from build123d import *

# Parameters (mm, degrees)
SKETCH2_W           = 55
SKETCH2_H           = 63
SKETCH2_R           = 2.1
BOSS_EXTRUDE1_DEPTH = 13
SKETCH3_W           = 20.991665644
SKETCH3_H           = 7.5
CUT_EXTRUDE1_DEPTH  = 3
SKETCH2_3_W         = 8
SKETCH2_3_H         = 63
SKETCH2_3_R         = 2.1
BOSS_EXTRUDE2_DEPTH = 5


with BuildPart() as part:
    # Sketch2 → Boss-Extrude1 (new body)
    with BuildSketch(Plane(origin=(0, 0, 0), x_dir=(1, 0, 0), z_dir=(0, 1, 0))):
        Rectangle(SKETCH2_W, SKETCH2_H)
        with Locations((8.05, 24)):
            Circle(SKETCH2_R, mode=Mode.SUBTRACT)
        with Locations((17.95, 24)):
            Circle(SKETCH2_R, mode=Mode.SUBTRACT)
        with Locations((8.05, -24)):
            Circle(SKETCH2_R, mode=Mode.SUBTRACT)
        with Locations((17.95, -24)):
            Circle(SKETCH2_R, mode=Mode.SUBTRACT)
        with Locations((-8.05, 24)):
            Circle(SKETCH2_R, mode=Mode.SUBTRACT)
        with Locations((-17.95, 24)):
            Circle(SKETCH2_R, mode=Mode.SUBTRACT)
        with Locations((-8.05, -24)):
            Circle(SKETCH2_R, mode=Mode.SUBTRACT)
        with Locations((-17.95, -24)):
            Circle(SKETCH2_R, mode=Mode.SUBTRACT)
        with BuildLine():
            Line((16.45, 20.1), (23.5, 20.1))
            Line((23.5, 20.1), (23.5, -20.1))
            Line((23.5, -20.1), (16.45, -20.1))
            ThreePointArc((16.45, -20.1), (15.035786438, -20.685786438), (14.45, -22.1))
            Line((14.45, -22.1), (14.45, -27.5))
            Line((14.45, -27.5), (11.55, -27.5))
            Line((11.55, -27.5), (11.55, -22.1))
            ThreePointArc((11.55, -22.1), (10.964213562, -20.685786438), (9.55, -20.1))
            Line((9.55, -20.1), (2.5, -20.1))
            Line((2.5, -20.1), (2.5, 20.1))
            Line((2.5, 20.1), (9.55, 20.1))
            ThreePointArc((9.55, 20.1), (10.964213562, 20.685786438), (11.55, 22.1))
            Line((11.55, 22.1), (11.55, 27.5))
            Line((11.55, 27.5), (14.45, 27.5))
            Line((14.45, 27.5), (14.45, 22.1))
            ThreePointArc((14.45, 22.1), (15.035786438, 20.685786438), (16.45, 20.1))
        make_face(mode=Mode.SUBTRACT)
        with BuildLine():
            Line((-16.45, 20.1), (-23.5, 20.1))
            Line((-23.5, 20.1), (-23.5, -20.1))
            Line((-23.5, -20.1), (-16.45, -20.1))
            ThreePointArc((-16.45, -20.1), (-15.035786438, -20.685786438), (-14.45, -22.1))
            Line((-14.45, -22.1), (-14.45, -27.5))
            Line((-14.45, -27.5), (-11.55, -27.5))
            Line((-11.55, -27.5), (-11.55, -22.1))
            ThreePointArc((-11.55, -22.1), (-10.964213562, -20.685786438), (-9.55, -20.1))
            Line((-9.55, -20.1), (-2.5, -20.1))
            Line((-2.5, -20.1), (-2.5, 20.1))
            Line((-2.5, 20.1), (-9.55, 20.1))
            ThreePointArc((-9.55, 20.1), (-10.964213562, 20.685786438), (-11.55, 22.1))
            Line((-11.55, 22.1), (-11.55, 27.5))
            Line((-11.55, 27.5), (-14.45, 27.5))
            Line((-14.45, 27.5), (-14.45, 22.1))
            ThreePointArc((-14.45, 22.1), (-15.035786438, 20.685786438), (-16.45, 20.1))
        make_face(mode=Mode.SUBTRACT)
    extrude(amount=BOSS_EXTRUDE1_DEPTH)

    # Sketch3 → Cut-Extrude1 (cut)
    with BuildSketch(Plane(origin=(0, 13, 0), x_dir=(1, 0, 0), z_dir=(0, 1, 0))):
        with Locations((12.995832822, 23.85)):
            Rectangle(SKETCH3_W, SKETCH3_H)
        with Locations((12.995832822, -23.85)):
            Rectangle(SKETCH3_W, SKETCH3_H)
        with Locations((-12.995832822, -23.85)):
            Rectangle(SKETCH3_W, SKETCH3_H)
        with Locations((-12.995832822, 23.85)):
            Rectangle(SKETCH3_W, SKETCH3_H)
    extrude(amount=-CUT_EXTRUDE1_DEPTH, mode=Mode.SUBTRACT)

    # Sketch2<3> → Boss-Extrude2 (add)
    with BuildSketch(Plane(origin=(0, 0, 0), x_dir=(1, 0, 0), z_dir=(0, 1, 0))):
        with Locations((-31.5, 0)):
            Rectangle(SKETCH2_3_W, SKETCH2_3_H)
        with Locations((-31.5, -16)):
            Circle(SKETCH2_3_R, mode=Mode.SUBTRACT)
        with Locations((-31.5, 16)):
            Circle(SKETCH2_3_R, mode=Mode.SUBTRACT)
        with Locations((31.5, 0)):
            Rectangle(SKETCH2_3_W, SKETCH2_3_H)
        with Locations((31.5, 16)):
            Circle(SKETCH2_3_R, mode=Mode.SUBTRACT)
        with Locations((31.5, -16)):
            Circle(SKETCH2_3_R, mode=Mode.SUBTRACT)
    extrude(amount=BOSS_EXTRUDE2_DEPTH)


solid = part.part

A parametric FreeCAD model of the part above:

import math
import FreeCAD as App
import Part
import Sketcher
from FreeCAD import Vector
Q = App.Units.Quantity

doc = App.newDocument("Part")
body = doc.addObject("PartDesign::Body", "Body")

# Sketch on XZ plane
sketch1 = body.newObject("Sketcher::SketchObject", "Sketch")
sketch1.AttachmentSupport = (doc.getObject("XZ_Plane"), [""])
sketch1.MapMode = "FlatFace"
sketch1.addGeometry([
    Part.LineSegment(Vector(-27.5, -31.5, 0), Vector(-27.5, 31.5, 0)),  # 0
    Part.LineSegment(Vector(-27.5, 31.5, 0), Vector(27.5, 31.5, 0)),  # 1
    Part.LineSegment(Vector(27.5, 31.5, 0), Vector(27.5, -31.5, 0)),  # 2
    Part.LineSegment(Vector(27.5, -31.5, 0), Vector(-27.5, -31.5, 0)),  # 3
    Part.Circle(Vector(-17.9, 24, 0), Vector(0, 0, 1), 2.1),  # 4
    Part.Circle(Vector(-8.1, 24, 0), Vector(0, 0, 1), 2.1),  # 5
    Part.Circle(Vector(8.1, 24, 0), Vector(0, 0, 1), 2.1),  # 6
    Part.Circle(Vector(17.9, 24, 0), Vector(0, 0, 1), 2.1),  # 7
    Part.LineSegment(Vector(-23.5, -20.1, 0), Vector(-16.4, -20.1, 0)),  # 8
    Part.ArcOfCircle(Part.Circle(Vector(-16.5, -22.1, 0), Vector(0, 0, 1), 2), math.radians(0), math.radians(90)),  # 9
    Part.LineSegment(Vector(-14.4, -22.1, 0), Vector(-14.4, -27.5, 0)),  # 10
    Part.LineSegment(Vector(-14.4, -27.5, 0), Vector(-11.6, -27.5, 0)),  # 11
    Part.LineSegment(Vector(-11.6, -27.5, 0), Vector(-11.6, -22.1, 0)),  # 12
    Part.ArcOfCircle(Part.Circle(Vector(-9.5, -22.1, 0), Vector(0, 0, 1), 2), math.radians(90), math.radians(180)),  # 13
    Part.LineSegment(Vector(-9.6, -20.1, 0), Vector(-2.5, -20.1, 0)),  # 14
    Part.LineSegment(Vector(-2.5, -20.1, 0), Vector(-2.5, 20.1, 0)),  # 15
    Part.LineSegment(Vector(-2.5, 20.1, 0), Vector(-9.6, 20.1, 0)),  # 16
    Part.ArcOfCircle(Part.Circle(Vector(-9.5, 22.1, 0), Vector(0, 0, 1), 2), math.radians(-180), math.radians(-90)),  # 17
    Part.LineSegment(Vector(-11.6, 22.1, 0), Vector(-11.6, 27.5, 0)),  # 18
    Part.LineSegment(Vector(-11.6, 27.5, 0), Vector(-14.4, 27.5, 0)),  # 19
    Part.LineSegment(Vector(-14.4, 27.5, 0), Vector(-14.4, 22.1, 0)),  # 20
    Part.ArcOfCircle(Part.Circle(Vector(-16.5, 22.1, 0), Vector(0, 0, 1), 2), math.radians(-90), math.radians(0)),  # 21
    Part.LineSegment(Vector(-16.4, 20.1, 0), Vector(-23.5, 20.1, 0)),  # 22
    Part.LineSegment(Vector(-23.5, 20.1, 0), Vector(-23.5, -20.1, 0)),  # 23
    Part.Circle(Vector(-17.9, -24, 0), Vector(0, 0, 1), 2.1),  # 24
    Part.Circle(Vector(-8.1, -24, 0), Vector(0, 0, 1), 2.1),  # 25
    Part.ArcOfCircle(Part.Circle(Vector(16.5, -22.1, 0), Vector(0, 0, 1), 2), math.radians(90), math.radians(180)),  # 26
    Part.LineSegment(Vector(16.4, -20.1, 0), Vector(23.5, -20.1, 0)),  # 27
    Part.LineSegment(Vector(23.5, -20.1, 0), Vector(23.5, 20.1, 0)),  # 28
    Part.LineSegment(Vector(23.5, 20.1, 0), Vector(16.4, 20.1, 0)),  # 29
    Part.ArcOfCircle(Part.Circle(Vector(16.5, 22.1, 0), Vector(0, 0, 1), 2), math.radians(-180), math.radians(-90)),  # 30
    Part.LineSegment(Vector(14.4, 22.1, 0), Vector(14.4, 27.5, 0)),  # 31
    Part.LineSegment(Vector(14.4, 27.5, 0), Vector(11.6, 27.5, 0)),  # 32
    Part.LineSegment(Vector(11.6, 27.5, 0), Vector(11.6, 22.1, 0)),  # 33
    Part.ArcOfCircle(Part.Circle(Vector(9.5, 22.1, 0), Vector(0, 0, 1), 2), math.radians(-90), math.radians(0)),  # 34
    Part.LineSegment(Vector(9.6, 20.1, 0), Vector(2.5, 20.1, 0)),  # 35
    Part.LineSegment(Vector(2.5, 20.1, 0), Vector(2.5, -20.1, 0)),  # 36
    Part.LineSegment(Vector(2.5, -20.1, 0), Vector(9.6, -20.1, 0)),  # 37
    Part.ArcOfCircle(Part.Circle(Vector(9.5, -22.1, 0), Vector(0, 0, 1), 2), math.radians(0), math.radians(90)),  # 38
    Part.LineSegment(Vector(11.6, -22.1, 0), Vector(11.6, -27.5, 0)),  # 39
    Part.LineSegment(Vector(11.6, -27.5, 0), Vector(14.4, -27.5, 0)),  # 40
    Part.LineSegment(Vector(14.4, -27.5, 0), Vector(14.4, -22.1, 0)),  # 41
    Part.Circle(Vector(8.1, -24, 0), Vector(0, 0, 1), 2.1),  # 42
    Part.Circle(Vector(17.9, -24, 0), Vector(0, 0, 1), 2.1),  # 43
], False)
sketch1.addConstraint([
    Sketcher.Constraint("Coincident", 0, 2, 1, 1),
    Sketcher.Constraint("Coincident", 1, 2, 2, 1),
    Sketcher.Constraint("Coincident", 2, 2, 3, 1),
    Sketcher.Constraint("Coincident", 3, 2, 0, 1),
    Sketcher.Constraint("Tangent", 8, 2, 9, 2),
    Sketcher.Constraint("Tangent", 9, 1, 10, 1),
    Sketcher.Constraint("Coincident", 10, 2, 11, 1),
    Sketcher.Constraint("Coincident", 11, 2, 12, 1),
    Sketcher.Constraint("Tangent", 12, 2, 13, 2),
    Sketcher.Constraint("Tangent", 13, 1, 14, 1),
    Sketcher.Constraint("Coincident", 14, 2, 15, 1),
    Sketcher.Constraint("Coincident", 15, 2, 16, 1),
    Sketcher.Constraint("Tangent", 16, 2, 17, 2),
    Sketcher.Constraint("Tangent", 17, 1, 18, 1),
    Sketcher.Constraint("Coincident", 18, 2, 19, 1),
    Sketcher.Constraint("Coincident", 19, 2, 20, 1),
    Sketcher.Constraint("Tangent", 20, 2, 21, 2),
    Sketcher.Constraint("Tangent", 21, 1, 22, 1),
    Sketcher.Constraint("Coincident", 22, 2, 23, 1),
    Sketcher.Constraint("Coincident", 23, 2, 8, 1),
    Sketcher.Constraint("Tangent", 26, 1, 27, 1),
    Sketcher.Constraint("Coincident", 27, 2, 28, 1),
    Sketcher.Constraint("Coincident", 28, 2, 29, 1),
    Sketcher.Constraint("Tangent", 29, 2, 30, 2),
    Sketcher.Constraint("Tangent", 30, 1, 31, 1),
    Sketcher.Constraint("Coincident", 31, 2, 32, 1),
    Sketcher.Constraint("Coincident", 32, 2, 33, 1),
    Sketcher.Constraint("Tangent", 33, 2, 34, 2),
    Sketcher.Constraint("Tangent", 34, 1, 35, 1),
    Sketcher.Constraint("Coincident", 35, 2, 36, 1),
    Sketcher.Constraint("Coincident", 36, 2, 37, 1),
    Sketcher.Constraint("Tangent", 37, 2, 38, 2),
    Sketcher.Constraint("Tangent", 38, 1, 39, 1),
    Sketcher.Constraint("Coincident", 39, 2, 40, 1),
    Sketcher.Constraint("Coincident", 40, 2, 41, 1),
    Sketcher.Constraint("Tangent", 41, 2, 26, 2),
    Sketcher.Constraint("Vertical", 0),
    Sketcher.Constraint("Horizontal", 1),
    Sketcher.Constraint("Vertical", 2),
    Sketcher.Constraint("Horizontal", 3),
    Sketcher.Constraint("Horizontal", 8),
    Sketcher.Constraint("Vertical", 10),
    Sketcher.Constraint("Horizontal", 11),
    Sketcher.Constraint("Vertical", 12),
    Sketcher.Constraint("Horizontal", 14),
    Sketcher.Constraint("Vertical", 15),
    Sketcher.Constraint("Horizontal", 16),
    Sketcher.Constraint("Vertical", 18),
    Sketcher.Constraint("Horizontal", 19),
    Sketcher.Constraint("Vertical", 20),
    Sketcher.Constraint("Horizontal", 22),
    Sketcher.Constraint("Vertical", 23),
    Sketcher.Constraint("Horizontal", 27),
    Sketcher.Constraint("Vertical", 28),
    Sketcher.Constraint("Horizontal", 29),
    Sketcher.Constraint("Vertical", 31),
    Sketcher.Constraint("Horizontal", 32),
    Sketcher.Constraint("Vertical", 33),
    Sketcher.Constraint("Horizontal", 35),
    Sketcher.Constraint("Vertical", 36),
    Sketcher.Constraint("Horizontal", 37),
    Sketcher.Constraint("Vertical", 39),
    Sketcher.Constraint("Horizontal", 40),
    Sketcher.Constraint("Vertical", 41),
    Sketcher.Constraint("Equal", 4, 5),
    Sketcher.Constraint("Equal", 5, 6),
    Sketcher.Constraint("Equal", 6, 7),
    Sketcher.Constraint("Equal", 9, 13),
    Sketcher.Constraint("Equal", 13, 17),
    Sketcher.Constraint("Equal", 17, 21),
    Sketcher.Constraint("Equal", 7, 24),
    Sketcher.Constraint("Equal", 24, 25),
    Sketcher.Constraint("Equal", 21, 26),
    Sketcher.Constraint("Equal", 26, 30),
    Sketcher.Constraint("Equal", 30, 34),
    Sketcher.Constraint("Equal", 34, 38),
    Sketcher.Constraint("Equal", 25, 42),
    Sketcher.Constraint("Equal", 42, 43),
    Sketcher.Constraint("Symmetric", 7, 3, 24, 3, -1, 1),
    Sketcher.Constraint("Symmetric", 6, 3, 25, 3, -1, 1),
    Sketcher.Constraint("Symmetric", 21, 3, 26, 3, -1, 1),
    Sketcher.Constraint("Symmetric", 9, 3, 30, 3, -1, 1),
    Sketcher.Constraint("Symmetric", 13, 3, 34, 3, -1, 1),
    Sketcher.Constraint("Symmetric", 17, 3, 38, 3, -1, 1),
    Sketcher.Constraint("Symmetric", 5, 3, 42, 3, -1, 1),
    Sketcher.Constraint("Symmetric", 4, 3, 43, 3, -1, 1),
    Sketcher.Constraint("Symmetric", 0, 2, 2, 2, -1, 1),
    Sketcher.Constraint("Symmetric", 5, 3, 6, 3, -2),
    Sketcher.Constraint("Symmetric", 4, 3, 7, 3, -2),
    Sketcher.Constraint("Symmetric", 9, 3, 26, 3, -2),
    Sketcher.Constraint("Symmetric", 17, 3, 34, 3, -2),
    Sketcher.Constraint("Horizontal", 4, 3, 5, 3),
    Sketcher.Constraint("Horizontal", 9, 3, 13, 3),
    Sketcher.Constraint("Horizontal", 19, 2, 31, 2),
    Sketcher.Constraint("Horizontal", 11, 2, 39, 2),
    Sketcher.Constraint("Equal", 8, 14),
    Sketcher.Constraint("Equal", 22, 27),
    Sketcher.Constraint("Equal", 29, 35),
    Sketcher.Constraint("Equal", 12, 18),
    Sketcher.Constraint("Radius", 9, Q("2 mm")),
    Sketcher.Constraint("Diameter", 4, Q("4.2 mm")),
    Sketcher.Constraint("DistanceX", 1, 1, 1, 2, Q("55 mm")),
    Sketcher.Constraint("DistanceY", 0, 1, 0, 2, Q("63 mm")),
    Sketcher.Constraint("DistanceX", 11, 1, 11, 2, Q("2.9 mm")),
    Sketcher.Constraint("DistanceY", 10, 2, 10, 1, Q("5.4 mm")),
    Sketcher.Constraint("DistanceY", 15, 1, 15, 2, Q("40.2 mm")),
    Sketcher.Constraint("DistanceY", -1, 1, 4, 3, Q("24 mm")),
    Sketcher.Constraint("DistanceX", 4, 3, 6, 3, Q("26 mm")),
    Sketcher.Constraint("DistanceX", 13, 3, 26, 3, Q("26 mm")),
    Sketcher.Constraint("DistanceX", 27, 2, 2, 2, Q("4 mm")),
    Sketcher.Constraint("DistanceX", 4, 3, 5, 3, Q("9.9 mm")),
])
pad1 = body.newObject("PartDesign::Pad", "Pad")
pad1.Profile = sketch1
pad1.Length = 13
pad1.Reversed = True

# Sketch on XZ plane
sketch2 = body.newObject("Sketcher::SketchObject", "Sketch001")
sketch2.AttachmentSupport = (doc.getObject("XZ_Plane"), [""])
sketch2.MapMode = "FlatFace"
sketch2.AttachmentOffset = App.Placement(Vector(0, 0, -13), App.Rotation())
sketch2.addGeometry([
    Part.LineSegment(Vector(2, -28, 0), Vector(2, -20, 0)),  # 0
    Part.LineSegment(Vector(2, -20, 0), Vector(23, -20, 0)),  # 1
    Part.LineSegment(Vector(23, -20, 0), Vector(23, -28, 0)),  # 2
    Part.LineSegment(Vector(23, -28, 0), Vector(2, -28, 0)),  # 3
    Part.LineSegment(Vector(2, 20, 0), Vector(2, 28, 0)),  # 4
    Part.LineSegment(Vector(2, 28, 0), Vector(23, 28, 0)),  # 5
    Part.LineSegment(Vector(23, 28, 0), Vector(23, 20, 0)),  # 6
    Part.LineSegment(Vector(23, 20, 0), Vector(2, 20, 0)),  # 7
    Part.LineSegment(Vector(-23, 20, 0), Vector(-23, 28, 0)),  # 8
    Part.LineSegment(Vector(-23, 28, 0), Vector(-2, 28, 0)),  # 9
    Part.LineSegment(Vector(-2, 28, 0), Vector(-2, 20, 0)),  # 10
    Part.LineSegment(Vector(-2, 20, 0), Vector(-23, 20, 0)),  # 11
    Part.LineSegment(Vector(-23, -28, 0), Vector(-23, -20, 0)),  # 12
    Part.LineSegment(Vector(-23, -20, 0), Vector(-2, -20, 0)),  # 13
    Part.LineSegment(Vector(-2, -20, 0), Vector(-2, -28, 0)),  # 14
    Part.LineSegment(Vector(-2, -28, 0), Vector(-23, -28, 0)),  # 15
], False)
sketch2.addConstraint([
    Sketcher.Constraint("Coincident", 0, 2, 1, 1),
    Sketcher.Constraint("Coincident", 1, 2, 2, 1),
    Sketcher.Constraint("Coincident", 2, 2, 3, 1),
    Sketcher.Constraint("Coincident", 3, 2, 0, 1),
    Sketcher.Constraint("Coincident", 4, 2, 5, 1),
    Sketcher.Constraint("Coincident", 5, 2, 6, 1),
    Sketcher.Constraint("Coincident", 6, 2, 7, 1),
    Sketcher.Constraint("Coincident", 7, 2, 4, 1),
    Sketcher.Constraint("Coincident", 8, 2, 9, 1),
    Sketcher.Constraint("Coincident", 9, 2, 10, 1),
    Sketcher.Constraint("Coincident", 10, 2, 11, 1),
    Sketcher.Constraint("Coincident", 11, 2, 8, 1),
    Sketcher.Constraint("Coincident", 12, 2, 13, 1),
    Sketcher.Constraint("Coincident", 13, 2, 14, 1),
    Sketcher.Constraint("Coincident", 14, 2, 15, 1),
    Sketcher.Constraint("Coincident", 15, 2, 12, 1),
    Sketcher.Constraint("Vertical", 0),
    Sketcher.Constraint("Horizontal", 1),
    Sketcher.Constraint("Vertical", 2),
    Sketcher.Constraint("Horizontal", 3),
    Sketcher.Constraint("Vertical", 4),
    Sketcher.Constraint("Horizontal", 5),
    Sketcher.Constraint("Vertical", 6),
    Sketcher.Constraint("Horizontal", 7),
    Sketcher.Constraint("Vertical", 8),
    Sketcher.Constraint("Horizontal", 9),
    Sketcher.Constraint("Vertical", 10),
    Sketcher.Constraint("Horizontal", 11),
    Sketcher.Constraint("Vertical", 12),
    Sketcher.Constraint("Horizontal", 13),
    Sketcher.Constraint("Vertical", 14),
    Sketcher.Constraint("Horizontal", 15),
    Sketcher.Constraint("Symmetric", 2, 2, 8, 2, -1, 1),
    Sketcher.Constraint("Symmetric", 0, 2, 10, 2, -1, 1),
    Sketcher.Constraint("Symmetric", 6, 2, 12, 2, -1, 1),
    Sketcher.Constraint("Symmetric", 4, 2, 14, 2, -1, 1),
    Sketcher.Constraint("Symmetric", 5, 2, 8, 2, -2),
    Sketcher.Constraint("Symmetric", 7, 2, 10, 2, -2),
    Sketcher.Constraint("DistanceY", 0, 1, 0, 2, Q("7.5 mm")),
    Sketcher.Constraint("DistanceX", 9, 2, 4, 2, Q("5 mm")),
    Sketcher.Constraint("DistanceY", 0, 2, -1, 1, Q("20.1 mm")),
    Sketcher.Constraint("DistanceX", 1, 1, 1, 2, Q("20.991666 mm")),
])
pocket1 = body.newObject("PartDesign::Pocket", "Pocket")
pocket1.Profile = sketch2
pocket1.Length = 3
pocket1.Reversed = True

# Sketch on XZ plane
sketch3 = body.newObject("Sketcher::SketchObject", "Sketch002")
sketch3.AttachmentSupport = (doc.getObject("XZ_Plane"), [""])
sketch3.MapMode = "FlatFace"
sketch3.addGeometry([
    Part.LineSegment(Vector(-35.5, -31.5, 0), Vector(-35.5, 31.5, 0)),  # 0
    Part.LineSegment(Vector(-35.5, 31.5, 0), Vector(-27.5, 31.5, 0)),  # 1
    Part.LineSegment(Vector(-27.5, 31.5, 0), Vector(-27.5, -31.5, 0)),  # 2
    Part.LineSegment(Vector(-27.5, -31.5, 0), Vector(-35.5, -31.5, 0)),  # 3
    Part.Circle(Vector(-31.5, 16, 0), Vector(0, 0, 1), 2.1),  # 4
    Part.Circle(Vector(-31.5, -16, 0), Vector(0, 0, 1), 2.1),  # 5
    Part.LineSegment(Vector(27.5, -31.5, 0), Vector(27.5, 31.5, 0)),  # 6
    Part.LineSegment(Vector(27.5, 31.5, 0), Vector(35.5, 31.5, 0)),  # 7
    Part.LineSegment(Vector(35.5, 31.5, 0), Vector(35.5, -31.5, 0)),  # 8
    Part.LineSegment(Vector(35.5, -31.5, 0), Vector(27.5, -31.5, 0)),  # 9
    Part.Circle(Vector(31.5, 16, 0), Vector(0, 0, 1), 2.1),  # 10
    Part.Circle(Vector(31.5, -16, 0), Vector(0, 0, 1), 2.1),  # 11
], False)
sketch3.addConstraint([
    Sketcher.Constraint("Coincident", 0, 2, 1, 1),
    Sketcher.Constraint("Coincident", 1, 2, 2, 1),
    Sketcher.Constraint("Coincident", 2, 2, 3, 1),
    Sketcher.Constraint("Coincident", 3, 2, 0, 1),
    Sketcher.Constraint("Coincident", 6, 2, 7, 1),
    Sketcher.Constraint("Coincident", 7, 2, 8, 1),
    Sketcher.Constraint("Coincident", 8, 2, 9, 1),
    Sketcher.Constraint("Coincident", 9, 2, 6, 1),
    Sketcher.Constraint("Vertical", 0),
    Sketcher.Constraint("Horizontal", 1),
    Sketcher.Constraint("Vertical", 2),
    Sketcher.Constraint("Horizontal", 3),
    Sketcher.Constraint("Vertical", 6),
    Sketcher.Constraint("Horizontal", 7),
    Sketcher.Constraint("Vertical", 8),
    Sketcher.Constraint("Horizontal", 9),
    Sketcher.Constraint("Equal", 4, 5),
    Sketcher.Constraint("Equal", 5, 10),
    Sketcher.Constraint("Equal", 10, 11),
    Sketcher.Constraint("Symmetric", 5, 3, 10, 3, -1, 1),
    Sketcher.Constraint("Symmetric", 4, 3, 11, 3, -1, 1),
    Sketcher.Constraint("Symmetric", 2, 2, 6, 2, -1, 1),
    Sketcher.Constraint("Symmetric", 0, 2, 8, 2, -1, 1),
    Sketcher.Constraint("Symmetric", 4, 3, 10, 3, -2),
    Sketcher.Constraint("Horizontal", 1, 2, 6, 2),
    Sketcher.Constraint("Diameter", 4, Q("4.2 mm")),
    Sketcher.Constraint("DistanceX", 1, 1, 1, 2, Q("8 mm")),
    Sketcher.Constraint("DistanceY", 0, 1, 0, 2, Q("63 mm")),
    Sketcher.Constraint("DistanceY", -1, 1, 4, 3, Q("16 mm")),
    Sketcher.Constraint("DistanceX", 4, 3, 10, 3, Q("63 mm")),
    Sketcher.Constraint("DistanceX", 0, 2, 4, 3, Q("4 mm")),
])
pad2 = body.newObject("PartDesign::Pad", "Pad001")
pad2.Profile = sketch3
pad2.Length = 5
pad2.Reversed = True

doc.recompute()
